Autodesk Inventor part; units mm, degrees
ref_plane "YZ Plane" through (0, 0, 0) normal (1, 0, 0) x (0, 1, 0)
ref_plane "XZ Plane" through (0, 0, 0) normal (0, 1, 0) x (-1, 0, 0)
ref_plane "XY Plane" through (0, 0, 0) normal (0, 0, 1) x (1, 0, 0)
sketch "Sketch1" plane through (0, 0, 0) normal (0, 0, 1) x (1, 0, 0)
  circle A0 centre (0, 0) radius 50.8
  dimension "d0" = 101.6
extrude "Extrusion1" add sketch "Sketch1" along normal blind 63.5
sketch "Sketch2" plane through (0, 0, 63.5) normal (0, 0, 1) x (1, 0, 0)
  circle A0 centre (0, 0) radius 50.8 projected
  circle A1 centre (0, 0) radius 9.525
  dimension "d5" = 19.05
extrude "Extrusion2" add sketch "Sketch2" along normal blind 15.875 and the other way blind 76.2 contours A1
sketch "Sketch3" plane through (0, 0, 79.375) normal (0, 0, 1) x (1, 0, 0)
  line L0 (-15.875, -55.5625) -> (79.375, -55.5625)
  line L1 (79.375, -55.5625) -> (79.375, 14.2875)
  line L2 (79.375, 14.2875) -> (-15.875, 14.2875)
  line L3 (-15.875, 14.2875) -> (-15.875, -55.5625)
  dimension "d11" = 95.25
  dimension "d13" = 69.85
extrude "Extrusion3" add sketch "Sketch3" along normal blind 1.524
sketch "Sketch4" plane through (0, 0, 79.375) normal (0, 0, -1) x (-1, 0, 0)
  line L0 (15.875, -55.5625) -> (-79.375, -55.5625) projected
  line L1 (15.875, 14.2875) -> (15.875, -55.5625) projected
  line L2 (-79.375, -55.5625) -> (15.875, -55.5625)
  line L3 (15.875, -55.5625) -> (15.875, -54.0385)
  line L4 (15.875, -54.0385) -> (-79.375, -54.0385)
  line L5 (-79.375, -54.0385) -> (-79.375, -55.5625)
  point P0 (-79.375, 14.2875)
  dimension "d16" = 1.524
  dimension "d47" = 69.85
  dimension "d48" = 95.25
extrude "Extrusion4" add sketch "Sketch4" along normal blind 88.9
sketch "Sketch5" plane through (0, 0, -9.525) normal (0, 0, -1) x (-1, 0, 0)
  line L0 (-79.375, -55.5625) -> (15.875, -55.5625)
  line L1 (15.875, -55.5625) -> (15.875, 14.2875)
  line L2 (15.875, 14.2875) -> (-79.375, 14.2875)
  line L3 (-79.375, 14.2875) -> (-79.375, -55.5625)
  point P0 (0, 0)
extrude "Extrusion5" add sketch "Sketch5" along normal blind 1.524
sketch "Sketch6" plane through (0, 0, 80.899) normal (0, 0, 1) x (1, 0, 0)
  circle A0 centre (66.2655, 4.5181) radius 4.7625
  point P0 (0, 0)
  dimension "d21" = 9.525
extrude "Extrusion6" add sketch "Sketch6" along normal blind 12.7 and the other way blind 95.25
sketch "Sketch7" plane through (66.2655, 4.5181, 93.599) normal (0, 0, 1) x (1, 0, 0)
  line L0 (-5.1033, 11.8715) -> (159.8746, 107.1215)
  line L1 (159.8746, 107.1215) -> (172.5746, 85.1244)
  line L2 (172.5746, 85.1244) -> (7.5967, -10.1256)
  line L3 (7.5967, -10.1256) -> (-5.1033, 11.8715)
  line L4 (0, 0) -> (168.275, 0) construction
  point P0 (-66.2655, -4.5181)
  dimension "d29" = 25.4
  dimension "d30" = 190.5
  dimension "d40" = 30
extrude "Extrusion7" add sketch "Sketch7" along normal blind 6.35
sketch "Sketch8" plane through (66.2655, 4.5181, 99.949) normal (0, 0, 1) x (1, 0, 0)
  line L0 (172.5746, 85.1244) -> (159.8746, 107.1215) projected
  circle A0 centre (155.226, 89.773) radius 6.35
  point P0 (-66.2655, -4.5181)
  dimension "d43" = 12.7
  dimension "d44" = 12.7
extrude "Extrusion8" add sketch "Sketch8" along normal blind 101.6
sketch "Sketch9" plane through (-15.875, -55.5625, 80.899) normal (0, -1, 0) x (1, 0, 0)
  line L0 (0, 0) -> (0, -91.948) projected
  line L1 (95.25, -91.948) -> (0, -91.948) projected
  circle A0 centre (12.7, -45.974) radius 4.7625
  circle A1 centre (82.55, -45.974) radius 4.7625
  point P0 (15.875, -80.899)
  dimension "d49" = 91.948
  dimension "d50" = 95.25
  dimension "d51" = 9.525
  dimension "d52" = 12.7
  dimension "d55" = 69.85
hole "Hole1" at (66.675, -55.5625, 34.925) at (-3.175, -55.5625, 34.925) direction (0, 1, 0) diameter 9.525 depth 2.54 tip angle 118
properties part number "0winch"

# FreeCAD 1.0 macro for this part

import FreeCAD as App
import Part
import Sketcher
from FreeCAD import Vector
Q = App.Units.Quantity


def add_polygon(sketch, points):
    """Adds a closed chain of lines whose ends are joined by coincident constraints."""
    first, n = sketch.GeometryCount, len(points)
    for a, b in zip(points, points[1:] + points[:1]):
        sketch.addGeometry(Part.LineSegment(App.Vector(*a, 0), App.Vector(*b, 0)), False)
    for i in range(n):
        sketch.addConstraint(Sketcher.Constraint("Coincident", first + i, 2, first + (i + 1) % n, 1))

doc = App.newDocument("Part")
params = doc.addObject("Spreadsheet::Sheet", "Params")
for row, (alias, value) in enumerate([
    ("sketch1_diameter", "4 in"),
    ("pad1_length", "2.5 in"),
    ("sketch2_diameter", "0.75 in"),
    ("pad2_length", "0.625 in"),
    ("pad2_length2", "3 in"),
    ("sketch3_width", "3.75 in"),
    ("sketch3_height", "2.75 in"),
    ("pad3_length", "0.06 in"),
    ("sketch4_width", "3.75 in"),
    ("sketch4_height", "0.06 in"),
    ("pad4_length", "3.5 in"),
    ("sketch5_width", "3.75 in"),
    ("sketch5_height", "2.75 in"),
    ("pad5_length", "0.06 in"),
    ("sketch6_diameter", "0.375 in"),
    ("pad6_length", "0.5 in"),
    ("pad6_length2", "3.75 in"),
    ("sketch7_length", "1 in"),
    ("sketch7_length2", "7.5 in"),
    ("pad7_length", "0.25 in"),
    ("sketch8_diameter", "0.5 in"),
    ("pad8_length", "4 in"),
    ("sketch9_diameter", "0.375 in"),
    ("hole_diameter", "0.375 in"),
    ("hole_depth", "0.1 in"),
], start=1):
    params.set(f"A{row}", alias)
    params.set(f"B{row}", "=" + value)
    params.setAlias(f"B{row}", alias)

body = doc.addObject("PartDesign::Body", "Body")

# Sketch on XY plane
sketch1 = body.newObject("Sketcher::SketchObject", "Sketch")
sketch1.AttachmentSupport = (doc.getObject("XY_Plane"), [""])
sketch1.MapMode = "FlatFace"
sketch1.addGeometry(Part.Circle(Vector(0, 0, 0), Vector(0, 0, 1), 51), False)
sketch1.addConstraint([
    Sketcher.Constraint("Coincident", 0, 3, -1, 1),
    Sketcher.Constraint("Diameter", 0, Q("4 in")),
])
sketch1.setExpression("Constraints[1]", "Params.sketch1_diameter")
pad1 = body.newObject("PartDesign::Pad", "Pad")
pad1.Profile = sketch1
pad1.setExpression("Length", "Params.pad1_length")

# Sketch on XY plane
sketch2 = body.newObject("Sketcher::SketchObject", "Sketch001")
sketch2.AttachmentSupport = (doc.getObject("XY_Plane"), [""])
sketch2.MapMode = "FlatFace"
sketch2.AttachmentOffset = App.Placement(Vector(0, 0, 2.5 * 25.4), App.Rotation())
sketch2.addGeometry(Part.Circle(Vector(0, 0, 0), Vector(0, 0, 1), 10), False)
sketch2.addConstraint([
    Sketcher.Constraint("Coincident", 0, 3, -1, 1),
    Sketcher.Constraint("Diameter", 0, Q("0.75 in")),
])
sketch2.setExpression("Constraints[1]", "Params.sketch2_diameter")
pad2 = body.newObject("PartDesign::Pad", "Pad001")
pad2.Profile = sketch2
pad2.Type = "TwoLengths"
pad2.setExpression("Length", "Params.pad2_length")
pad2.setExpression("Length2", "Params.pad2_length2")

# Sketch on XY plane
sketch3 = body.newObject("Sketcher::SketchObject", "Sketch002")
sketch3.AttachmentSupport = (doc.getObject("XY_Plane"), [""])
sketch3.MapMode = "FlatFace"
sketch3.AttachmentOffset = App.Placement(Vector(0, 0, 3.125 * 25.4), App.Rotation())
add_polygon(sketch3, [(-16, 14), (-16, -56), (79, -56), (79, 14)])  # lines 0-3
sketch3.addConstraint([
    Sketcher.Constraint("Vertical", 0),
    Sketcher.Constraint("Horizontal", 1),
    Sketcher.Constraint("Vertical", 2),
    Sketcher.Constraint("Horizontal", 3),
    Sketcher.Constraint("DistanceX", 1, 1, 1, 2, Q("3.75 in")),
    Sketcher.Constraint("DistanceY", 0, 2, 0, 1, Q("2.75 in")),
    Sketcher.Constraint("DistanceX", 0, 2, -1, 1, Q("0.625 in")),
    Sketcher.Constraint("DistanceY", 0, 2, -1, 1, Q("2.1875 in")),
])
sketch3.setExpression("Constraints[8]", "Params.sketch3_width")
sketch3.setExpression("Constraints[9]", "Params.sketch3_height")
pad3 = body.newObject("PartDesign::Pad", "Pad002")
pad3.Profile = sketch3
pad3.setExpression("Length", "Params.pad3_length")

# Sketch on XY plane
sketch4 = body.newObject("Sketcher::SketchObject", "Sketch003")
sketch4.AttachmentSupport = (doc.getObject("XY_Plane"), [""])
sketch4.MapMode = "FlatFace"
sketch4.AttachmentOffset = App.Placement(Vector(0, 0, 3.125 * 25.4), App.Rotation())
add_polygon(sketch4, [(79.4, -55.6), (-15.9, -55.6), (-15.9, -54), (79.4, -54)])  # lines 0-3
sketch4.addConstraint([
    Sketcher.Constraint("Horizontal", 0),
    Sketcher.Constraint("Vertical", 1),
    Sketcher.Constraint("Horizontal", 2),
    Sketcher.Constraint("Vertical", 3),
    Sketcher.Constraint("DistanceX", 0, 2, 0, 1, Q("3.75 in")),
    Sketcher.Constraint("DistanceY", 1, 1, 1, 2, Q("0.06 in")),
    Sketcher.Constraint("DistanceX", 0, 2, -1, 1, Q("0.625 in")),
    Sketcher.Constraint("DistanceY", 0, 2, -1, 1, Q("2.1875 in")),
])
sketch4.setExpression("Constraints[8]", "Params.sketch4_width")
sketch4.setExpression("Constraints[9]", "Params.sketch4_height")
pad4 = body.newObject("PartDesign::Pad", "Pad003")
pad4.Profile = sketch4
pad4.setExpression("Length", "Params.pad4_length")
pad4.Reversed = True

# Sketch on XY plane
sketch5 = body.newObject("Sketcher::SketchObject", "Sketch004")
sketch5.AttachmentSupport = (doc.getObject("XY_Plane"), [""])
sketch5.MapMode = "FlatFace"
sketch5.AttachmentOffset = App.Placement(Vector(0, 0, -0.375 * 25.4), App.Rotation())
add_polygon(sketch5, [(79, 14), (79, -56), (-16, -56), (-16, 14)])  # lines 0-3
sketch5.addConstraint([
    Sketcher.Constraint("Vertical", 0),
    Sketcher.Constraint("Horizontal", 1),
    Sketcher.Constraint("Vertical", 2),
    Sketcher.Constraint("Horizontal", 3),
    Sketcher.Constraint("DistanceX", 1, 2, 1, 1, Q("3.75 in")),
    Sketcher.Constraint("DistanceY", 0, 2, 0, 1, Q("2.75 in")),
    Sketcher.Constraint("DistanceX", -1, 1, 0, 2, Q("3.125 in")),
    Sketcher.Constraint("DistanceY", 0, 2, -1, 1, Q("2.1875 in")),
])
sketch5.setExpression("Constraints[8]", "Params.sketch5_width")
sketch5.setExpression("Constraints[9]", "Params.sketch5_height")
pad5 = body.newObject("PartDesign::Pad", "Pad004")
pad5.Profile = sketch5
pad5.setExpression("Length", "Params.pad5_length")
pad5.Reversed = True

# Sketch on XY plane
sketch6 = body.newObject("Sketcher::SketchObject", "Sketch005")
sketch6.AttachmentSupport = (doc.getObject("XY_Plane"), [""])
sketch6.MapMode = "FlatFace"
sketch6.AttachmentOffset = App.Placement(Vector(0, 0, 3.185 * 25.4), App.Rotation())
sketch6.addGeometry(Part.Circle(Vector(66.3, 4.5, 0), Vector(0, 0, 1), 4.8), False)
sketch6.addConstraint([
    Sketcher.Constraint("Diameter", 0, Q("0.375 in")),
    Sketcher.Constraint("DistanceX", -1, 1, 0, 3, 66.2655),
    Sketcher.Constraint("DistanceY", -1, 1, 0, 3, 4.518),
])
sketch6.setExpression("Constraints[0]", "Params.sketch6_diameter")
pad6 = body.newObject("PartDesign::Pad", "Pad005")
pad6.Profile = sketch6
pad6.Type = "TwoLengths"
pad6.setExpression("Length", "Params.pad6_length")
pad6.setExpression("Length2", "Params.pad6_length2")

# Sketch on XY plane
sketch7 = body.newObject("Sketcher::SketchObject", "Sketch006")
sketch7.AttachmentSupport = (doc.getObject("XY_Plane"), [""])
sketch7.MapMode = "FlatFace"
sketch7.AttachmentOffset = App.Placement(Vector(0, 0, 3.685 * 25.4), App.Rotation())
add_polygon(sketch7, [(226, 112), (61, 16), (74, -6), (239, 90)])  # lines 0-3
sketch7.addConstraint([
    Sketcher.Constraint("Perpendicular", 0, 1),
    Sketcher.Constraint("Perpendicular", 1, 2),
    Sketcher.Constraint("Perpendicular", 2, 3),
    Sketcher.Constraint("Distance", 1, Q("1 in")),
    Sketcher.Constraint("Angle", 2, Q("30 deg")),
    Sketcher.Constraint("Distance", 0, Q("7.5 in")),
    Sketcher.Constraint("DistanceX", -1, 1, 0, 2, 61.1622),
    Sketcher.Constraint("DistanceY", -1, 1, 0, 2, 16.3896),
])
sketch7.setExpression("Constraints[7]", "Params.sketch7_length")
sketch7.setExpression("Constraints[9]", "Params.sketch7_length2")
pad7 = body.newObject("PartDesign::Pad", "Pad006")
pad7.Profile = sketch7
pad7.setExpression("Length", "Params.pad7_length")

# Sketch on XY plane
sketch8 = body.newObject("Sketcher::SketchObject", "Sketch007")
sketch8.AttachmentSupport = (doc.getObject("XY_Plane"), [""])
sketch8.MapMode = "FlatFace"
sketch8.AttachmentOffset = App.Placement(Vector(0, 0, 3.935 * 25.4), App.Rotation())
sketch8.addGeometry(Part.Circle(Vector(221, 94, 0), Vector(0, 0, 1), 6), False)
sketch8.addConstraint([
    Sketcher.Constraint("Diameter", 0, Q("0.5 in")),
    Sketcher.Constraint("DistanceX", -1, 1, 0, 3, 221.4915),
    Sketcher.Constraint("DistanceY", -1, 1, 0, 3, 94.291),
])
sketch8.setExpression("Constraints[0]", "Params.sketch8_diameter")
pad8 = body.newObject("PartDesign::Pad", "Pad007")
pad8.Profile = sketch8
pad8.setExpression("Length", "Params.pad8_length")

# Sketch on XZ plane
sketch9 = body.newObject("Sketcher::SketchObject", "Sketch008")
sketch9.AttachmentSupport = (doc.getObject("XZ_Plane"), [""])
sketch9.MapMode = "FlatFace"
sketch9.AttachmentOffset = App.Placement(Vector(0, 0, 2.1875 * 25.4), App.Rotation())
sketch9.addGeometry([
    Part.Circle(Vector(66.7, 34.9, 0), Vector(0, 0, 1), 4.8),
    Part.Circle(Vector(-3.2, 34.9, 0), Vector(0, 0, 1), 4.8),
], False)
sketch9.addConstraint([
    Sketcher.Constraint("Equal", 0, 1),
    Sketcher.Constraint("Horizontal", 0, 3, 1, 3),
    Sketcher.Constraint("Diameter", 0, Q("0.375 in")),
    Sketcher.Constraint("DistanceX", 1, 3, 0, 3, Q("2.75 in")),
    Sketcher.Constraint("DistanceX", -1, 1, 0, 3, Q("2.625 in")),
    Sketcher.Constraint("DistanceY", -1, 1, 0, 3, Q("1.375 in")),
])
sketch9.setExpression("Constraints[2]", "Params.sketch9_diameter")
doc.recompute()
hole = body.newObject("PartDesign::Hole", "Hole")
hole.Profile = sketch9
hole.ThreadType = "None"
hole.setExpression("Diameter", "Params.hole_diameter")
hole.DepthType = "Dimension"
hole.setExpression("Depth", "Params.hole_depth")
hole.DrillPoint = "Angled"
hole.DrillPointAngle = 118

doc.recompute()
